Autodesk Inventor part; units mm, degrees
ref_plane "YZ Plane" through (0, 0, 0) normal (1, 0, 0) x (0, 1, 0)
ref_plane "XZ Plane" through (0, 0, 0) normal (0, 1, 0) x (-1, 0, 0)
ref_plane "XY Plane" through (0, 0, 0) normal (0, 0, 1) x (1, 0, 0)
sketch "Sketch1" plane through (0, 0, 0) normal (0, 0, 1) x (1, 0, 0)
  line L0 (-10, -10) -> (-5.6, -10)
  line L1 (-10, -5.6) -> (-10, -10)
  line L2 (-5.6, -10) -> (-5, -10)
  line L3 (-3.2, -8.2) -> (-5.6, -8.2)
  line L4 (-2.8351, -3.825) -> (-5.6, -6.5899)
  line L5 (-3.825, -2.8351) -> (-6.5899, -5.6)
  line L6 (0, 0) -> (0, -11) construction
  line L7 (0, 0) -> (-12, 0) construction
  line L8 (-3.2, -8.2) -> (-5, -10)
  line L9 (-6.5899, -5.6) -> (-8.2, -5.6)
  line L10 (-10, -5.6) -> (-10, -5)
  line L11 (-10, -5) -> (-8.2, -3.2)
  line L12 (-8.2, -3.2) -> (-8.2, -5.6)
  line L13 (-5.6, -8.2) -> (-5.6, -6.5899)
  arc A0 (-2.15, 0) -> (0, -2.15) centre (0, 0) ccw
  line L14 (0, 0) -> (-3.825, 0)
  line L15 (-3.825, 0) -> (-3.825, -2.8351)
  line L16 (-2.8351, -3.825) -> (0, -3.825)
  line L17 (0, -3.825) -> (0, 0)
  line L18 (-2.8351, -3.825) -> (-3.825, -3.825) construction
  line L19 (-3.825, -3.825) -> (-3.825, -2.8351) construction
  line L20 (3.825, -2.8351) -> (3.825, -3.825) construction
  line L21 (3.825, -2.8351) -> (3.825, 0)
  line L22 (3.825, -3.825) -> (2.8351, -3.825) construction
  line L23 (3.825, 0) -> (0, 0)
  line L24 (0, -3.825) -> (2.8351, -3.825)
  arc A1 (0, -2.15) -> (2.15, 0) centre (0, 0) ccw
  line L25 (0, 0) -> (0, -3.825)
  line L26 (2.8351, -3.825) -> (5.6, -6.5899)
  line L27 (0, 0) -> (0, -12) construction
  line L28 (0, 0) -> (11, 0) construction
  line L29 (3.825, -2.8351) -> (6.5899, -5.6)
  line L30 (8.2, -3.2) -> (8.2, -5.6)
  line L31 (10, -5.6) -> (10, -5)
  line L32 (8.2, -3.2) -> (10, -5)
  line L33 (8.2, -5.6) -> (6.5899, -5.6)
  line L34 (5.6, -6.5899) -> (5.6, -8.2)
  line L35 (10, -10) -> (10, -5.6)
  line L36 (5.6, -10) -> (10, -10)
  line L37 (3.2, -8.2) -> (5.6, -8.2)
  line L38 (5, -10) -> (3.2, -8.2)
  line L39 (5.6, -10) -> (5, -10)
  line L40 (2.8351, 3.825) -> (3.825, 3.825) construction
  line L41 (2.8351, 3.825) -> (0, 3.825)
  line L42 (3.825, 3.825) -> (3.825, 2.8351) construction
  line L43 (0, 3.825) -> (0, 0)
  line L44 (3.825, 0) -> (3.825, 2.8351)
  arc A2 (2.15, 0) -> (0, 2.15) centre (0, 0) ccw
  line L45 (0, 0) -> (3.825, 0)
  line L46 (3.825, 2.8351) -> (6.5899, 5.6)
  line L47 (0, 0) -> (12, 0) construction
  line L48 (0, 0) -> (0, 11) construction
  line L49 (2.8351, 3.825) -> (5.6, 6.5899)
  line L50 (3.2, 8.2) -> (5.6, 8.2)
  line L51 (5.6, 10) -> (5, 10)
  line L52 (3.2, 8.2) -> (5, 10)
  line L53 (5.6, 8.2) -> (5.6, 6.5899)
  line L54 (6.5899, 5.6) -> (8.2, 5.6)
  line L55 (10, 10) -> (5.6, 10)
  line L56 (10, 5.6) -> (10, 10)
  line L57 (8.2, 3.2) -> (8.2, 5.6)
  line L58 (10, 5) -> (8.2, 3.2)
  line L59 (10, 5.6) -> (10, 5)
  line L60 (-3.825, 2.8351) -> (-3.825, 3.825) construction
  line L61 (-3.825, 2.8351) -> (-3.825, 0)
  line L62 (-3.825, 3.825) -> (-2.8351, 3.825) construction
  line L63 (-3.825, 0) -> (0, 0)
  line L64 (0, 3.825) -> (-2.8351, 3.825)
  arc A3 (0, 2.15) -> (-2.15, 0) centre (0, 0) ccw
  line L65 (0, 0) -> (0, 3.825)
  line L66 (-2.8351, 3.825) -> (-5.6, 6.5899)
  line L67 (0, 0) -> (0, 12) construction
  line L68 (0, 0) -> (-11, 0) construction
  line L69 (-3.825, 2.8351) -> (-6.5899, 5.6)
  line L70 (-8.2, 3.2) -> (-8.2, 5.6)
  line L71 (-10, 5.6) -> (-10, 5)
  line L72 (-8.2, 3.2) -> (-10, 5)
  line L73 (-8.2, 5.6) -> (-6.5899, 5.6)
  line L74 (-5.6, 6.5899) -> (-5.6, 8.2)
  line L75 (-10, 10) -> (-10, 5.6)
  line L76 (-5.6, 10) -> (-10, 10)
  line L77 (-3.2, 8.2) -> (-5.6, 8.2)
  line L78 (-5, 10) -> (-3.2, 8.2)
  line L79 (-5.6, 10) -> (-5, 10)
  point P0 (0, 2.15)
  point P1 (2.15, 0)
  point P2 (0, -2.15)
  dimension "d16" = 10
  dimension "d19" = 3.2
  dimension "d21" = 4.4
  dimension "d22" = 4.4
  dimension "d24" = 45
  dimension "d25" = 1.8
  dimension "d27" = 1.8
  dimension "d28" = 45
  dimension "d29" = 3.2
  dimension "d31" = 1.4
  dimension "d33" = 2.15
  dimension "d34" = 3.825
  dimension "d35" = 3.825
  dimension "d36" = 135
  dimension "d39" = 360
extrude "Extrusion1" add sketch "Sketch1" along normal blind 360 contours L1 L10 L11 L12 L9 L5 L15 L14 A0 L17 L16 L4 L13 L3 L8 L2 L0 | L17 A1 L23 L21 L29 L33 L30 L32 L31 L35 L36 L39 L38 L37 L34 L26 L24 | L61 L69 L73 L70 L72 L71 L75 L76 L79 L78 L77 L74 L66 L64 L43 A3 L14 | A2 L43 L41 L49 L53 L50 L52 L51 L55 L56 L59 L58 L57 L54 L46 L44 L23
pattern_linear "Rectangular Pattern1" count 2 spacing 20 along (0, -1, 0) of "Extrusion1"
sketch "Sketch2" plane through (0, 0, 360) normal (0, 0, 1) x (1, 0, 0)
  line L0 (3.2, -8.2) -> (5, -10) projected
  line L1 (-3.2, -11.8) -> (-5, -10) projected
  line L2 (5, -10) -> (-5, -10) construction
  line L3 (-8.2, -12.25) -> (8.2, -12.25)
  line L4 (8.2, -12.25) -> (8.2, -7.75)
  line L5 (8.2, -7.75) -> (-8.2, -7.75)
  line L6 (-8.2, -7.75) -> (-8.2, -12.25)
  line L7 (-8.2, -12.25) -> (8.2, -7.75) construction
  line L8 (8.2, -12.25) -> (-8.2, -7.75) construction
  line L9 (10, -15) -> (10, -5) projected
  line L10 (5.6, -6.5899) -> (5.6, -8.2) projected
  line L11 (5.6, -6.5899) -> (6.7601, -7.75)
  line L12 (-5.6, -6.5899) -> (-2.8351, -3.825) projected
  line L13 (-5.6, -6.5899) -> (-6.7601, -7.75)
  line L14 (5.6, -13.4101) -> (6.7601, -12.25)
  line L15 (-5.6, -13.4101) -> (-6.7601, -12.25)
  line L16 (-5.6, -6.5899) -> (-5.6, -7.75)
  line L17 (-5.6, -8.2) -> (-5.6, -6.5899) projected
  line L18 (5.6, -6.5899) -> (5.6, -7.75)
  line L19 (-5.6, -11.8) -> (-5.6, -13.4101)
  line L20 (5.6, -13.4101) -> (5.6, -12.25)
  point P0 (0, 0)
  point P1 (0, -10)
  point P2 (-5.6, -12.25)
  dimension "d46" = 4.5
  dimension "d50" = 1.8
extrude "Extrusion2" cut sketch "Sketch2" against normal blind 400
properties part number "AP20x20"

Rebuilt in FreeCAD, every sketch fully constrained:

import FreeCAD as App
import Part
import Sketcher

doc = App.newDocument("Part")
body = doc.addObject("PartDesign::Body", "Body")

# Sketch on XY plane
sketch1 = body.newObject("Sketcher::SketchObject", "Sketch")
sketch1.AttachmentSupport = (doc.getObject("XY_Plane"), [""])
sketch1.MapMode = "FlatFace"
sketch1.addGeometry(Part.LineSegment(App.Vector(-10, -10, 0), App.Vector(-5, -10, 0)), False)
sketch1.addGeometry(Part.LineSegment(App.Vector(-5, -10, 0), App.Vector(-3.2, -8.2, 0)), False)
sketch1.addGeometry(Part.LineSegment(App.Vector(-3.2, -8.2, 0), App.Vector(-5.6, -8.2, 0)), False)
sketch1.addGeometry(Part.LineSegment(App.Vector(-5.6, -8.2, 0), App.Vector(-5.6, -6.6, 0)), False)
sketch1.addGeometry(Part.LineSegment(App.Vector(-5.6, -6.6, 0), App.Vector(-2.8, -3.8, 0)), False)
sketch1.addGeometry(Part.LineSegment(App.Vector(-2.8, -3.8, 0), App.Vector(2.8, -3.8, 0)), False)
sketch1.addGeometry(Part.LineSegment(App.Vector(2.8, -3.8, 0), App.Vector(5.6, -6.6, 0)), False)
sketch1.addGeometry(Part.LineSegment(App.Vector(5.6, -6.6, 0), App.Vector(5.6, -8.2, 0)), False)
sketch1.addGeometry(Part.LineSegment(App.Vector(5.6, -8.2, 0), App.Vector(3.2, -8.2, 0)), False)
sketch1.addGeometry(Part.LineSegment(App.Vector(3.2, -8.2, 0), App.Vector(5, -10, 0)), False)
sketch1.addGeometry(Part.LineSegment(App.Vector(5, -10, 0), App.Vector(10, -10, 0)), False)
sketch1.addGeometry(Part.LineSegment(App.Vector(10, -10, 0), App.Vector(10, -5, 0)), False)
sketch1.addGeometry(Part.LineSegment(App.Vector(10, -5, 0), App.Vector(8.2, -3.2, 0)), False)
sketch1.addGeometry(Part.LineSegment(App.Vector(8.2, -3.2, 0), App.Vector(8.2, -5.6, 0)), False)
sketch1.addGeometry(Part.LineSegment(App.Vector(8.2, -5.6, 0), App.Vector(6.6, -5.6, 0)), False)
sketch1.addGeometry(Part.LineSegment(App.Vector(6.6, -5.6, 0), App.Vector(3.8, -2.8, 0)), False)
sketch1.addGeometry(Part.LineSegment(App.Vector(3.8, -2.8, 0), App.Vector(3.8, 2.8, 0)), False)
sketch1.addGeometry(Part.LineSegment(App.Vector(3.8, 2.8, 0), App.Vector(6.6, 5.6, 0)), False)
sketch1.addGeometry(Part.LineSegment(App.Vector(6.6, 5.6, 0), App.Vector(8.2, 5.6, 0)), False)
sketch1.addGeometry(Part.LineSegment(App.Vector(8.2, 5.6, 0), App.Vector(8.2, 3.2, 0)), False)
sketch1.addGeometry(Part.LineSegment(App.Vector(8.2, 3.2, 0), App.Vector(10, 5, 0)), False)
sketch1.addGeometry(Part.LineSegment(App.Vector(10, 5, 0), App.Vector(10, 10, 0)), False)
sketch1.addGeometry(Part.LineSegment(App.Vector(10, 10, 0), App.Vector(5, 10, 0)), False)
sketch1.addGeometry(Part.LineSegment(App.Vector(5, 10, 0), App.Vector(3.2, 8.2, 0)), False)
sketch1.addGeometry(Part.LineSegment(App.Vector(3.2, 8.2, 0), App.Vector(5.6, 8.2, 0)), False)
sketch1.addGeometry(Part.LineSegment(App.Vector(5.6, 8.2, 0), App.Vector(5.6, 6.6, 0)), False)
sketch1.addGeometry(Part.LineSegment(App.Vector(5.6, 6.6, 0), App.Vector(2.8, 3.8, 0)), False)
sketch1.addGeometry(Part.LineSegment(App.Vector(2.8, 3.8, 0), App.Vector(-2.8, 3.8, 0)), False)
sketch1.addGeometry(Part.LineSegment(App.Vector(-2.8, 3.8, 0), App.Vector(-5.6, 6.6, 0)), False)
sketch1.addGeometry(Part.LineSegment(App.Vector(-5.6, 6.6, 0), App.Vector(-5.6, 8.2, 0)), False)
sketch1.addGeometry(Part.LineSegment(App.Vector(-5.6, 8.2, 0), App.Vector(-3.2, 8.2, 0)), False)
sketch1.addGeometry(Part.LineSegment(App.Vector(-3.2, 8.2, 0), App.Vector(-5, 10, 0)), False)
sketch1.addGeometry(Part.LineSegment(App.Vector(-5, 10, 0), App.Vector(-10, 10, 0)), False)
sketch1.addGeometry(Part.LineSegment(App.Vector(-10, 10, 0), App.Vector(-10, 5, 0)), False)
sketch1.addGeometry(Part.LineSegment(App.Vector(-10, 5, 0), App.Vector(-8.2, 3.2, 0)), False)
sketch1.addGeometry(Part.LineSegment(App.Vector(-8.2, 3.2, 0), App.Vector(-8.2, 5.6, 0)), False)
sketch1.addGeometry(Part.LineSegment(App.Vector(-8.2, 5.6, 0), App.Vector(-6.6, 5.6, 0)), False)
sketch1.addGeometry(Part.LineSegment(App.Vector(-6.6, 5.6, 0), App.Vector(-3.8, 2.8, 0)), False)
sketch1.addGeometry(Part.LineSegment(App.Vector(-3.8, 2.8, 0), App.Vector(-3.8, -2.8, 0)), False)
sketch1.addGeometry(Part.LineSegment(App.Vector(-3.8, -2.8, 0), App.Vector(-6.6, -5.6, 0)), False)
sketch1.addGeometry(Part.LineSegment(App.Vector(-6.6, -5.6, 0), App.Vector(-8.2, -5.6, 0)), False)
sketch1.addGeometry(Part.LineSegment(App.Vector(-8.2, -5.6, 0), App.Vector(-8.2, -3.2, 0)), False)
sketch1.addGeometry(Part.LineSegment(App.Vector(-8.2, -3.2, 0), App.Vector(-10, -5, 0)), False)
sketch1.addGeometry(Part.LineSegment(App.Vector(-10, -5, 0), App.Vector(-10, -10, 0)), False)
sketch1.addGeometry(Part.Circle(App.Vector(0, 0, 0), App.Vector(0, 0, 1), 2.1), False)
sketch1.addConstraint(Sketcher.Constraint("Coincident", 0, 2, 1, 1))
sketch1.addConstraint(Sketcher.Constraint("Coincident", 1, 2, 2, 1))
sketch1.addConstraint(Sketcher.Constraint("Coincident", 2, 2, 3, 1))
sketch1.addConstraint(Sketcher.Constraint("Coincident", 3, 2, 4, 1))
sketch1.addConstraint(Sketcher.Constraint("Coincident", 4, 2, 5, 1))
sketch1.addConstraint(Sketcher.Constraint("Coincident", 5, 2, 6, 1))
sketch1.addConstraint(Sketcher.Constraint("Coincident", 6, 2, 7, 1))
sketch1.addConstraint(Sketcher.Constraint("Coincident", 7, 2, 8, 1))
sketch1.addConstraint(Sketcher.Constraint("Coincident", 8, 2, 9, 1))
sketch1.addConstraint(Sketcher.Constraint("Coincident", 9, 2, 10, 1))
sketch1.addConstraint(Sketcher.Constraint("Coincident", 10, 2, 11, 1))
sketch1.addConstraint(Sketcher.Constraint("Coincident", 11, 2, 12, 1))
sketch1.addConstraint(Sketcher.Constraint("Coincident", 12, 2, 13, 1))
sketch1.addConstraint(Sketcher.Constraint("Coincident", 13, 2, 14, 1))
sketch1.addConstraint(Sketcher.Constraint("Coincident", 14, 2, 15, 1))
sketch1.addConstraint(Sketcher.Constraint("Coincident", 15, 2, 16, 1))
sketch1.addConstraint(Sketcher.Constraint("Coincident", 16, 2, 17, 1))
sketch1.addConstraint(Sketcher.Constraint("Coincident", 17, 2, 18, 1))
sketch1.addConstraint(Sketcher.Constraint("Coincident", 18, 2, 19, 1))
sketch1.addConstraint(Sketcher.Constraint("Coincident", 19, 2, 20, 1))
sketch1.addConstraint(Sketcher.Constraint("Coincident", 20, 2, 21, 1))
sketch1.addConstraint(Sketcher.Constraint("Coincident", 21, 2, 22, 1))
sketch1.addConstraint(Sketcher.Constraint("Coincident", 22, 2, 23, 1))
sketch1.addConstraint(Sketcher.Constraint("Coincident", 23, 2, 24, 1))
sketch1.addConstraint(Sketcher.Constraint("Coincident", 24, 2, 25, 1))
sketch1.addConstraint(Sketcher.Constraint("Coincident", 25, 2, 26, 1))
sketch1.addConstraint(Sketcher.Constraint("Coincident", 26, 2, 27, 1))
sketch1.addConstraint(Sketcher.Constraint("Coincident", 27, 2, 28, 1))
sketch1.addConstraint(Sketcher.Constraint("Coincident", 28, 2, 29, 1))
sketch1.addConstraint(Sketcher.Constraint("Coincident", 29, 2, 30, 1))
sketch1.addConstraint(Sketcher.Constraint("Coincident", 30, 2, 31, 1))
sketch1.addConstraint(Sketcher.Constraint("Coincident", 31, 2, 32, 1))
sketch1.addConstraint(Sketcher.Constraint("Coincident", 32, 2, 33, 1))
sketch1.addConstraint(Sketcher.Constraint("Coincident", 33, 2, 34, 1))
sketch1.addConstraint(Sketcher.Constraint("Coincident", 34, 2, 35, 1))
sketch1.addConstraint(Sketcher.Constraint("Coincident", 35, 2, 36, 1))
sketch1.addConstraint(Sketcher.Constraint("Coincident", 36, 2, 37, 1))
sketch1.addConstraint(Sketcher.Constraint("Coincident", 37, 2, 38, 1))
sketch1.addConstraint(Sketcher.Constraint("Coincident", 38, 2, 39, 1))
sketch1.addConstraint(Sketcher.Constraint("Coincident", 39, 2, 40, 1))
sketch1.addConstraint(Sketcher.Constraint("Coincident", 40, 2, 41, 1))
sketch1.addConstraint(Sketcher.Constraint("Coincident", 41, 2, 42, 1))
sketch1.addConstraint(Sketcher.Constraint("Coincident", 42, 2, 43, 1))
sketch1.addConstraint(Sketcher.Constraint("Coincident", 43, 2, 0, 1))
sketch1.addConstraint(Sketcher.Constraint("Horizontal", 0))
sketch1.addConstraint(Sketcher.Constraint("Horizontal", 2))
sketch1.addConstraint(Sketcher.Constraint("Vertical", 3))
sketch1.addConstraint(Sketcher.Constraint("Horizontal", 5))
sketch1.addConstraint(Sketcher.Constraint("Vertical", 7))
sketch1.addConstraint(Sketcher.Constraint("Horizontal", 8))
sketch1.addConstraint(Sketcher.Constraint("Horizontal", 10))
sketch1.addConstraint(Sketcher.Constraint("Vertical", 11))
sketch1.addConstraint(Sketcher.Constraint("Vertical", 13))
sketch1.addConstraint(Sketcher.Constraint("Horizontal", 14))
sketch1.addConstraint(Sketcher.Constraint("Vertical", 16))
sketch1.addConstraint(Sketcher.Constraint("Horizontal", 18))
sketch1.addConstraint(Sketcher.Constraint("Vertical", 19))
sketch1.addConstraint(Sketcher.Constraint("Vertical", 21))
sketch1.addConstraint(Sketcher.Constraint("Horizontal", 22))
sketch1.addConstraint(Sketcher.Constraint("Horizontal", 24))
sketch1.addConstraint(Sketcher.Constraint("Vertical", 25))
sketch1.addConstraint(Sketcher.Constraint("Horizontal", 27))
sketch1.addConstraint(Sketcher.Constraint("Vertical", 29))
sketch1.addConstraint(Sketcher.Constraint("Horizontal", 30))
sketch1.addConstraint(Sketcher.Constraint("Horizontal", 32))
sketch1.addConstraint(Sketcher.Constraint("Vertical", 33))
sketch1.addConstraint(Sketcher.Constraint("Vertical", 35))
sketch1.addConstraint(Sketcher.Constraint("Horizontal", 36))
sketch1.addConstraint(Sketcher.Constraint("Vertical", 38))
sketch1.addConstraint(Sketcher.Constraint("Horizontal", 40))
sketch1.addConstraint(Sketcher.Constraint("Vertical", 41))
sketch1.addConstraint(Sketcher.Constraint("Vertical", 43))
sketch1.addConstraint(Sketcher.Constraint("Coincident", 44, 3, -1, 1))
sketch1.addConstraint(Sketcher.Constraint("Symmetric", 0, 2, 22, 2, -1, 1))
sketch1.addConstraint(Sketcher.Constraint("Symmetric", 1, 2, 23, 2, -1, 1))
sketch1.addConstraint(Sketcher.Constraint("Symmetric", 3, 2, 25, 2, -1, 1))
sketch1.addConstraint(Sketcher.Constraint("Symmetric", 4, 2, 26, 2, -1, 1))
sketch1.addConstraint(Sketcher.Constraint("Symmetric", 6, 2, 28, 2, -1, 1))
sketch1.addConstraint(Sketcher.Constraint("Symmetric", 8, 2, 30, 2, -1, 1))
sketch1.addConstraint(Sketcher.Constraint("Symmetric", 9, 2, 31, 2, -1, 1))
sketch1.addConstraint(Sketcher.Constraint("Symmetric", 11, 2, 33, 2, -1, 1))
sketch1.addConstraint(Sketcher.Constraint("Symmetric", 12, 2, 34, 2, -1, 1))
sketch1.addConstraint(Sketcher.Constraint("Symmetric", 14, 2, 36, 2, -1, 1))
sketch1.addConstraint(Sketcher.Constraint("Symmetric", 15, 2, 37, 2, -1, 1))
sketch1.addConstraint(Sketcher.Constraint("Symmetric", 17, 2, 39, 2, -1, 1))
sketch1.addConstraint(Sketcher.Constraint("Symmetric", 19, 2, 41, 2, -1, 1))
sketch1.addConstraint(Sketcher.Constraint("Symmetric", 20, 2, 42, 2, -1, 1))
sketch1.addConstraint(Sketcher.Constraint("Symmetric", 3, 2, 6, 2, -2))
sketch1.addConstraint(Sketcher.Constraint("Symmetric", 1, 2, 8, 2, -2))
sketch1.addConstraint(Sketcher.Constraint("Symmetric", 0, 2, 9, 2, -2))
sketch1.addConstraint(Sketcher.Constraint("Symmetric", 20, 2, 33, 2, -2))
sketch1.addConstraint(Sketcher.Constraint("Symmetric", 19, 2, 34, 2, -2))
sketch1.addConstraint(Sketcher.Constraint("Symmetric", 17, 2, 36, 2, -2))
sketch1.addConstraint(Sketcher.Constraint("Parallel", 1, 4))
sketch1.addConstraint(Sketcher.Constraint("Perpendicular", 4, 6))
sketch1.addConstraint(Sketcher.Constraint("Parallel", 6, 9))
sketch1.addConstraint(Sketcher.Constraint("Parallel", 9, 12))
sketch1.addConstraint(Sketcher.Constraint("Parallel", 12, 15))
sketch1.addConstraint(Sketcher.Constraint("Perpendicular", 15, 17))
sketch1.addConstraint(Sketcher.Constraint("Perpendicular", 26, 28))
sketch1.addConstraint(Sketcher.Constraint("Perpendicular", 37, 39))
sketch1.addConstraint(Sketcher.Constraint("Equal", 40, 3))
sketch1.addConstraint(Sketcher.Constraint("Equal", 32, 11))
sketch1.addConstraint(Sketcher.Constraint("Equal", 30, 13))
sketch1.addConstraint(Sketcher.Constraint("Equal", 27, 16))
sketch1.addConstraint(Sketcher.Constraint("Equal", 9, 12))
sketch1.addConstraint(Sketcher.Constraint("Equal", 6, 15))
sketch1.addConstraint(Sketcher.Constraint("Diameter", 44, 4.3))
sketch1.addConstraint(Sketcher.Constraint("DistanceY", 0, 2, -1, 1, 10.0))
sketch1.addConstraint(Sketcher.Constraint("DistanceX", 1, 2, -1, 1, 3.2))
sketch1.addConstraint(Sketcher.Constraint("DistanceX", 0, 2, 1, 2, 1.8))
sketch1.addConstraint(Sketcher.Constraint("DistanceX", 7, 2, 10, 2, 4.4))
sketch1.addConstraint(Sketcher.Constraint("DistanceY", 4, 2, -1, 1, 3.825))
sketch1.addConstraint(Sketcher.Constraint("DistanceX", 14, 2, 14, 1, 1.61))
pad1 = body.newObject("PartDesign::Pad", "Pad")
pad1.Profile = sketch1
pad1.Length = 360
doc.recompute()

linearpattern = body.newObject("PartDesign::LinearPattern", "LinearPattern")
linearpattern.Originals = [pad1]
linearpattern.Direction = (doc.getObject("Y_Axis"), [""])
linearpattern.Mode = "offset"
linearpattern.Offset = 20
linearpattern.Occurrences = 2
linearpattern.Reversed = True
body.Tip = linearpattern

# Sketch on XY plane
sketch2 = body.newObject("Sketcher::SketchObject", "Sketch001")
sketch2.AttachmentSupport = (doc.getObject("XY_Plane"), [""])
sketch2.MapMode = "FlatFace"
sketch2.AttachmentOffset = App.Placement(App.Vector(0, 0, 360), App.Rotation())
sketch2.addGeometry(Part.LineSegment(App.Vector(-8.2, -7.8, 0), App.Vector(-8.2, -12.2, 0)), False)
sketch2.addGeometry(Part.LineSegment(App.Vector(-8.2, -12.2, 0), App.Vector(-6.8, -12.2, 0)), False)
sketch2.addGeometry(Part.LineSegment(App.Vector(-6.8, -12.2, 0), App.Vector(-5.6, -13.4, 0)), False)
sketch2.addGeometry(Part.LineSegment(App.Vector(-5.6, -13.4, 0), App.Vector(-5.6, -12.2, 0)), False)
sketch2.addGeometry(Part.LineSegment(App.Vector(-5.6, -12.2, 0), App.Vector(5.6, -12.2, 0)), False)
sketch2.addGeometry(Part.LineSegment(App.Vector(5.6, -12.2, 0), App.Vector(5.6, -13.4, 0)), False)
sketch2.addGeometry(Part.LineSegment(App.Vector(5.6, -13.4, 0), App.Vector(6.8, -12.2, 0)), False)
sketch2.addGeometry(Part.LineSegment(App.Vector(6.8, -12.2, 0), App.Vector(8.2, -12.2, 0)), False)
sketch2.addGeometry(Part.LineSegment(App.Vector(8.2, -12.2, 0), App.Vector(8.2, -7.8, 0)), False)
sketch2.addGeometry(Part.LineSegment(App.Vector(8.2, -7.8, 0), App.Vector(6.8, -7.8, 0)), False)
sketch2.addGeometry(Part.LineSegment(App.Vector(6.8, -7.8, 0), App.Vector(5.6, -6.6, 0)), False)
sketch2.addGeometry(Part.LineSegment(App.Vector(5.6, -6.6, 0), App.Vector(5.6, -7.8, 0)), False)
sketch2.addGeometry(Part.LineSegment(App.Vector(5.6, -7.8, 0), App.Vector(-5.6, -7.8, 0)), False)
sketch2.addGeometry(Part.LineSegment(App.Vector(-5.6, -7.8, 0), App.Vector(-5.6, -6.6, 0)), False)
sketch2.addGeometry(Part.LineSegment(App.Vector(-5.6, -6.6, 0), App.Vector(-6.8, -7.8, 0)), False)
sketch2.addGeometry(Part.LineSegment(App.Vector(-6.8, -7.8, 0), App.Vector(-8.2, -7.8, 0)), False)
sketch2.addConstraint(Sketcher.Constraint("Coincident", 0, 2, 1, 1))
sketch2.addConstraint(Sketcher.Constraint("Coincident", 1, 2, 2, 1))
sketch2.addConstraint(Sketcher.Constraint("Coincident", 2, 2, 3, 1))
sketch2.addConstraint(Sketcher.Constraint("Coincident", 3, 2, 4, 1))
sketch2.addConstraint(Sketcher.Constraint("Coincident", 4, 2, 5, 1))
sketch2.addConstraint(Sketcher.Constraint("Coincident", 5, 2, 6, 1))
sketch2.addConstraint(Sketcher.Constraint("Coincident", 6, 2, 7, 1))
sketch2.addConstraint(Sketcher.Constraint("Coincident", 7, 2, 8, 1))
sketch2.addConstraint(Sketcher.Constraint("Coincident", 8, 2, 9, 1))
sketch2.addConstraint(Sketcher.Constraint("Coincident", 9, 2, 10, 1))
sketch2.addConstraint(Sketcher.Constraint("Coincident", 10, 2, 11, 1))
sketch2.addConstraint(Sketcher.Constraint("Coincident", 11, 2, 12, 1))
sketch2.addConstraint(Sketcher.Constraint("Coincident", 12, 2, 13, 1))
sketch2.addConstraint(Sketcher.Constraint("Coincident", 13, 2, 14, 1))
sketch2.addConstraint(Sketcher.Constraint("Coincident", 14, 2, 15, 1))
sketch2.addConstraint(Sketcher.Constraint("Coincident", 15, 2, 0, 1))
sketch2.addConstraint(Sketcher.Constraint("Vertical", 0))
sketch2.addConstraint(Sketcher.Constraint("Horizontal", 1))
sketch2.addConstraint(Sketcher.Constraint("Vertical", 3))
sketch2.addConstraint(Sketcher.Constraint("Horizontal", 4))
sketch2.addConstraint(Sketcher.Constraint("Vertical", 5))
sketch2.addConstraint(Sketcher.Constraint("Horizontal", 7))
sketch2.addConstraint(Sketcher.Constraint("Vertical", 8))
sketch2.addConstraint(Sketcher.Constraint("Horizontal", 9))
sketch2.addConstraint(Sketcher.Constraint("Vertical", 11))
sketch2.addConstraint(Sketcher.Constraint("Horizontal", 12))
sketch2.addConstraint(Sketcher.Constraint("Vertical", 13))
sketch2.addConstraint(Sketcher.Constraint("Horizontal", 15))
sketch2.addConstraint(Sketcher.Constraint("Symmetric", 2, 2, 5, 2, -2))
sketch2.addConstraint(Sketcher.Constraint("Symmetric", 1, 2, 6, 2, -2))
sketch2.addConstraint(Sketcher.Constraint("Symmetric", 10, 2, 13, 2, -2))
sketch2.addConstraint(Sketcher.Constraint("Symmetric", 9, 2, 14, 2, -2))
sketch2.addConstraint(Sketcher.Constraint("Perpendicular", 2, 6))
sketch2.addConstraint(Sketcher.Constraint("Perpendicular", 6, 10))
sketch2.addConstraint(Sketcher.Constraint("Horizontal", 1, 2, 3, 2))
sketch2.addConstraint(Sketcher.Constraint("Horizontal", 9, 2, 11, 2))
sketch2.addConstraint(Sketcher.Constraint("Vertical", 6, 2, 9, 2))
sketch2.addConstraint(Sketcher.Constraint("Vertical", 5, 2, 10, 2))
sketch2.addConstraint(Sketcher.Constraint("Equal", 1, 7))
sketch2.addConstraint(Sketcher.Constraint("DistanceY", 0, 2, 0, 1, 4.5))
sketch2.addConstraint(Sketcher.Constraint("DistanceX", 4, 1, 4, 2, 11.2))
sketch2.addConstraint(Sketcher.Constraint("DistanceX", 1, 1, 1, 2, 1.44))
sketch2.addConstraint(Sketcher.Constraint("DistanceY", 3, 1, 3, 2, 1.16))
sketch2.addConstraint(Sketcher.Constraint("DistanceY", 0, 2, -1, 1, 12.25))
pocket1 = body.newObject("PartDesign::Pocket", "Pocket")
pocket1.Profile = sketch2
pocket1.Length = 400

doc.recompute()
